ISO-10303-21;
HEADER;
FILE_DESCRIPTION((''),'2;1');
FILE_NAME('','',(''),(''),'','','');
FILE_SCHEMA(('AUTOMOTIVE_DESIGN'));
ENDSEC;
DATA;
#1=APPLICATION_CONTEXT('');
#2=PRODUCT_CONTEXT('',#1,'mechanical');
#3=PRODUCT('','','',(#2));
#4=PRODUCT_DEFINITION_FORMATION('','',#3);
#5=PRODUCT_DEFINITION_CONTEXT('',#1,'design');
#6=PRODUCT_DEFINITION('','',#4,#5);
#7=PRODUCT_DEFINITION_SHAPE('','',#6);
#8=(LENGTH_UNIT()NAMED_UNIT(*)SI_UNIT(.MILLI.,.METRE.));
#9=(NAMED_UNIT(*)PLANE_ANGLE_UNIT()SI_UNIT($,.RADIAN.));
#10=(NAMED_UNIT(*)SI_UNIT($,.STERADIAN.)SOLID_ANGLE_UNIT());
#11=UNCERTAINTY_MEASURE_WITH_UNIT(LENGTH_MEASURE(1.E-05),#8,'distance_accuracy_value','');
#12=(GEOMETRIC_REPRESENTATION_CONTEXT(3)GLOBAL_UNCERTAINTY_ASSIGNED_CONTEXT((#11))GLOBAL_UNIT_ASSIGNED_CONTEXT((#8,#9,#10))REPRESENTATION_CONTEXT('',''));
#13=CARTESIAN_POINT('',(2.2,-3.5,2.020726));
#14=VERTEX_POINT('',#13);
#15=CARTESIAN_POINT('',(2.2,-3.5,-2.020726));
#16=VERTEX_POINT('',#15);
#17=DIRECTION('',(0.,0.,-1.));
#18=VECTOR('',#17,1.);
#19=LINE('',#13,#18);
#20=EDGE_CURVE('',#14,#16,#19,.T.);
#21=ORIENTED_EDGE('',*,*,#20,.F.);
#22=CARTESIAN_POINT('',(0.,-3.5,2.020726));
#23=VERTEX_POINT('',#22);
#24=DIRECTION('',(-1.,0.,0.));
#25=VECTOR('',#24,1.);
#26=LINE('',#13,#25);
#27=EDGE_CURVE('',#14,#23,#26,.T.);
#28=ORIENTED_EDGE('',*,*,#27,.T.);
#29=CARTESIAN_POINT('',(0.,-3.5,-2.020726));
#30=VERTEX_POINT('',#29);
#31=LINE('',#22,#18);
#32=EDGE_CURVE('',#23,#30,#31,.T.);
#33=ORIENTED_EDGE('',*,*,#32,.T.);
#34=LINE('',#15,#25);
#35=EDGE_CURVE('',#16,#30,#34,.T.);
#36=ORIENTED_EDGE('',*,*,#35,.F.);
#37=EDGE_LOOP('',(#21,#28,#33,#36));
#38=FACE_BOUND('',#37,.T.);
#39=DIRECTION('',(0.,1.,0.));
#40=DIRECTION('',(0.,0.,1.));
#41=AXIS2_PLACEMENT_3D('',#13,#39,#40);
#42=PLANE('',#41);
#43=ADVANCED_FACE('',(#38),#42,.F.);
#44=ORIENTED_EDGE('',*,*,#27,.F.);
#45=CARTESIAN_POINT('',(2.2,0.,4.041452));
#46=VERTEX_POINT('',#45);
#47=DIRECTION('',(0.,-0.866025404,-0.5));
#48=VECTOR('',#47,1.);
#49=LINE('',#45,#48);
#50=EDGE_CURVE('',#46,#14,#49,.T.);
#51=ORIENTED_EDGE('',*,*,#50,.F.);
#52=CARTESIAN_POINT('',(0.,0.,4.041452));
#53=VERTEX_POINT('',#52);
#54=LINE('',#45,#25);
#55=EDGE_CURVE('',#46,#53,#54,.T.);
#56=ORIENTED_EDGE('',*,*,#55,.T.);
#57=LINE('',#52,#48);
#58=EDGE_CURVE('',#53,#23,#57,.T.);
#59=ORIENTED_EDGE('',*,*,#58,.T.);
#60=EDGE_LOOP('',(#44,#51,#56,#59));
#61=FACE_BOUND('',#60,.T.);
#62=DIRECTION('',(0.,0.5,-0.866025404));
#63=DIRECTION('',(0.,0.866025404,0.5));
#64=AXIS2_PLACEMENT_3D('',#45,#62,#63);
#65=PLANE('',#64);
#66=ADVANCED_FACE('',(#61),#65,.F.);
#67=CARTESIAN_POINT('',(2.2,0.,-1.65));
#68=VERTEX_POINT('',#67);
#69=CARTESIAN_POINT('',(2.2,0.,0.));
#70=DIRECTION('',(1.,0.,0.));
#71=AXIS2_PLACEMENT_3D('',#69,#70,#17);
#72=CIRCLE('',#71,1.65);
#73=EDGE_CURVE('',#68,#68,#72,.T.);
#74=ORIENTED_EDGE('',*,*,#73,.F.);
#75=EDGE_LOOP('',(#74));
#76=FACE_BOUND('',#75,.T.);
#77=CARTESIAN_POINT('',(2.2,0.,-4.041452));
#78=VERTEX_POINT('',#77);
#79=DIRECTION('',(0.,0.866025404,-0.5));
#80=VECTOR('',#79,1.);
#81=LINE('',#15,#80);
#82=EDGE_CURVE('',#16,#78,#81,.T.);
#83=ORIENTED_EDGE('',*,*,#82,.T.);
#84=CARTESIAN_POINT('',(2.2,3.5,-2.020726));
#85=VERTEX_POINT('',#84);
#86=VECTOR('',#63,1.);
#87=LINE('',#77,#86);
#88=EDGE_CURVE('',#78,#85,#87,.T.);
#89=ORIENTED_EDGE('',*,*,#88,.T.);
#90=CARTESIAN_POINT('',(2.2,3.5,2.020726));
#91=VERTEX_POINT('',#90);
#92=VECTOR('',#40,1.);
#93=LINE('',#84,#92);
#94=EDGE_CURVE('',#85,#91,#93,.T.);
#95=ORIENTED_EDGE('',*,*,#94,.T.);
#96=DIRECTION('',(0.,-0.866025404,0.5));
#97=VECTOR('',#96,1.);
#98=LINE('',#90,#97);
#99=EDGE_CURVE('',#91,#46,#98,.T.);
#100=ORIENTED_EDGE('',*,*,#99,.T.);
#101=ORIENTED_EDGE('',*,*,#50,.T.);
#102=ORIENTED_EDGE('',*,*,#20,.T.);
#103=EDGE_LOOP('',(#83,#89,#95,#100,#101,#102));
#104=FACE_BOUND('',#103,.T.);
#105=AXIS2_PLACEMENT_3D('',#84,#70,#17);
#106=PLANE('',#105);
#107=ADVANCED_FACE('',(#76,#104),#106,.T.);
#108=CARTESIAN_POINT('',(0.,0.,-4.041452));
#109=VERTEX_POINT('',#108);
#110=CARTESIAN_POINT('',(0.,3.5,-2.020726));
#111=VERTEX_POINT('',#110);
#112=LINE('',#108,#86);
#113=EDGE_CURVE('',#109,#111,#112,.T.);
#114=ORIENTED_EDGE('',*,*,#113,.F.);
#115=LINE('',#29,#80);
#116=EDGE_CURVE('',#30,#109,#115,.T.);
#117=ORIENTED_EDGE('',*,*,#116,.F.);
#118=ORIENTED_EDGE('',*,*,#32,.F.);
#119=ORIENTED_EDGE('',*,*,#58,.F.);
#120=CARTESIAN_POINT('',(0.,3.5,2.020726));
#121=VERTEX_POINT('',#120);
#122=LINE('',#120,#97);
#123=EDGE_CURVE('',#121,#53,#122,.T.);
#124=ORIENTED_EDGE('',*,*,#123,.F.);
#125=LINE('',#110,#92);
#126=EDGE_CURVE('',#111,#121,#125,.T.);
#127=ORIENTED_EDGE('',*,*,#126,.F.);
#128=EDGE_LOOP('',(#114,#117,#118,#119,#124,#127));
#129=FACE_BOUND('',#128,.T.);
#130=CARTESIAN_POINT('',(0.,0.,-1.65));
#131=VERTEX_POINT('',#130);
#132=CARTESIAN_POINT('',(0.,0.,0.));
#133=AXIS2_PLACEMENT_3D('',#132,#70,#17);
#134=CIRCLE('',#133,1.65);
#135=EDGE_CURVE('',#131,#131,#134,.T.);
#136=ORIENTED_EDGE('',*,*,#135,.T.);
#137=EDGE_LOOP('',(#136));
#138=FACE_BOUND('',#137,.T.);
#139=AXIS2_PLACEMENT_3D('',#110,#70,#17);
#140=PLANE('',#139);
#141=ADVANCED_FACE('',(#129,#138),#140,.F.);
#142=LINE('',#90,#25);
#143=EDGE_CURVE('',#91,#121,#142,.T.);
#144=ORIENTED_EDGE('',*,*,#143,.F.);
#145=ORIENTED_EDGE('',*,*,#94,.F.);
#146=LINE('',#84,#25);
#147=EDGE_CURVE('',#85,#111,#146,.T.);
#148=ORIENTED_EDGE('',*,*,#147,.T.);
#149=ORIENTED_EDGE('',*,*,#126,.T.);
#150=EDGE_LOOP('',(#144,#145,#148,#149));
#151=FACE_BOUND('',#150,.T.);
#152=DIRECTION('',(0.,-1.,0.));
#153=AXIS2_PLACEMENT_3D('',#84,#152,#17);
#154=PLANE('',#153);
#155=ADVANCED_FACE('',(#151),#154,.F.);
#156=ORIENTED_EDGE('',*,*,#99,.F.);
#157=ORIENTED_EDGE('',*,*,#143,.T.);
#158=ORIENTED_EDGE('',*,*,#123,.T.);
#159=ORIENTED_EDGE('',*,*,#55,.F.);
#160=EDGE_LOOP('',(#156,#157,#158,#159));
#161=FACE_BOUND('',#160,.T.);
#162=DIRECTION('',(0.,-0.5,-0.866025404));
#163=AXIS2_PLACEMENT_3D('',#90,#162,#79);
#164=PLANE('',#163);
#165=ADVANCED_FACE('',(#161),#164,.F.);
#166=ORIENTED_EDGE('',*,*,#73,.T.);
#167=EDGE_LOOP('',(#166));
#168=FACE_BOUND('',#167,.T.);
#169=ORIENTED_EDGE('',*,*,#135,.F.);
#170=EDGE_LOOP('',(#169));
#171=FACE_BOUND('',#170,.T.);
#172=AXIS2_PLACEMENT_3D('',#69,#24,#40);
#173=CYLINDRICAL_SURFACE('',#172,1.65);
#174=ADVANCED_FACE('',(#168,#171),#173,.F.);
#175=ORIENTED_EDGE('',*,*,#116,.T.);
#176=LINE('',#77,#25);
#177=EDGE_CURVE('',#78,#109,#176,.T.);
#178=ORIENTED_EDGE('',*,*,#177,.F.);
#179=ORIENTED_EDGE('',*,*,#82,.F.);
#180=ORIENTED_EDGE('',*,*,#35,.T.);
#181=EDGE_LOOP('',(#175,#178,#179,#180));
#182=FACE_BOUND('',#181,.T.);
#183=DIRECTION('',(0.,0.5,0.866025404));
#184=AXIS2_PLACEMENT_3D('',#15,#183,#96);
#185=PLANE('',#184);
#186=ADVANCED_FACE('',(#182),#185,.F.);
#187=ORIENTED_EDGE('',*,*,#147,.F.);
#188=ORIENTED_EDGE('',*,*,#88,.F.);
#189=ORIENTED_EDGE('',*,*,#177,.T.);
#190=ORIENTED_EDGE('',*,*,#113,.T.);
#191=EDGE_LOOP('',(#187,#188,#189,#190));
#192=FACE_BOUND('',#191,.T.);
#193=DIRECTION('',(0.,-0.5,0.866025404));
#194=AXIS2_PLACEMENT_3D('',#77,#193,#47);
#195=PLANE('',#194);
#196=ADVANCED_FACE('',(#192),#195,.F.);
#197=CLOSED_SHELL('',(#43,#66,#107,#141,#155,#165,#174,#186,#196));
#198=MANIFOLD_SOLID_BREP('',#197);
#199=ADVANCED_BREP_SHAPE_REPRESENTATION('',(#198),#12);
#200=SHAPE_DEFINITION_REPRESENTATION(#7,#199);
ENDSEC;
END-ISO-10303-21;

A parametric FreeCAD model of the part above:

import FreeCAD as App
import Part
import Sketcher

V = App.Vector
Q = App.Units.Quantity

doc = App.newDocument("Part")
body = doc.addObject("PartDesign::Body", "Body")

sketch1 = doc.addObject("Sketcher::SketchObject", "Sketch")
body.addObject(sketch1)
sketch1.AttachmentSupport = (doc.YZ_Plane, [""])
sketch1.MapMode = "FlatFace"
sketch1.addGeometry(Part.LineSegment(V(3.5, -2, 0), V(3.5, 2, 0)), False)
sketch1.addGeometry(Part.LineSegment(V(3.5, 2, 0), V(0, 4, 0)), False)
sketch1.addGeometry(Part.LineSegment(V(0, 4, 0), V(-3.5, 2, 0)), False)
sketch1.addGeometry(Part.LineSegment(V(-3.5, 2, 0), V(-3.5, -2, 0)), False)
sketch1.addGeometry(Part.LineSegment(V(-3.5, -2, 0), V(0, -4, 0)), False)
sketch1.addGeometry(Part.LineSegment(V(0, -4, 0), V(3.5, -2, 0)), False)
sketch1.addGeometry(Part.Circle(V(0, 0, 0), V(0, 0, 1), 1.6), False)
sketch1.addConstraint(Sketcher.Constraint("Coincident", 0, 2, 1, 1))
sketch1.addConstraint(Sketcher.Constraint("Coincident", 1, 2, 2, 1))
sketch1.addConstraint(Sketcher.Constraint("Coincident", 2, 2, 3, 1))
sketch1.addConstraint(Sketcher.Constraint("Coincident", 3, 2, 4, 1))
sketch1.addConstraint(Sketcher.Constraint("Coincident", 4, 2, 5, 1))
sketch1.addConstraint(Sketcher.Constraint("Coincident", 5, 2, 0, 1))
sketch1.addConstraint(Sketcher.Constraint("Vertical", 0))
sketch1.addConstraint(Sketcher.Constraint("Vertical", 3))
sketch1.addConstraint(Sketcher.Constraint("Coincident", 6, 3, -1, 1))
sketch1.addConstraint(Sketcher.Constraint("Symmetric", 0, 2, 3, 2, -1, 1))
sketch1.addConstraint(Sketcher.Constraint("Symmetric", 1, 2, 4, 2, -1, 1))
sketch1.addConstraint(Sketcher.Constraint("PointOnObject", 1, 2, -2))
sketch1.addConstraint(Sketcher.Constraint("Parallel", 2, 5))
sketch1.addConstraint(Sketcher.Constraint("Horizontal", 0, 2, 2, 2))
sketch1.addConstraint(Sketcher.Constraint("Diameter", 6, 3.3))
sketch1.addConstraint(Sketcher.Constraint("Angle", 1, Q("150 deg")))
sketch1.addConstraint(Sketcher.Constraint("DistanceX", 2, 2, 0, 2, 7.0))
sketch1.addConstraint(Sketcher.Constraint("DistanceY", 0, 1, 0, 2, 4.041452))
pad1 = doc.addObject("PartDesign::Pad", "Pad")
body.addObject(pad1)
pad1.Profile = sketch1
pad1.Length = 2.2

doc.recompute()
